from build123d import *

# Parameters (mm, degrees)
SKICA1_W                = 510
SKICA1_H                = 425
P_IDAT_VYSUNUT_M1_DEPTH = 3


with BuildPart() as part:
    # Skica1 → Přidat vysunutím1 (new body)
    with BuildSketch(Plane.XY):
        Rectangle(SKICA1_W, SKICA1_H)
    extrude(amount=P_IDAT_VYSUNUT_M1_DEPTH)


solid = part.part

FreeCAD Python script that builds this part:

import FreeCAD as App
import Part
import Sketcher

V = App.Vector


def add_polygon(sketch, points):
    """Adds a closed chain of lines whose ends are joined by coincident constraints."""
    first, n = sketch.GeometryCount, len(points)
    for a, b in zip(points, points[1:] + points[:1]):
        sketch.addGeometry(Part.LineSegment(App.Vector(*a, 0), App.Vector(*b, 0)), False)
    for i in range(n):
        sketch.addConstraint(Sketcher.Constraint("Coincident", first + i, 2, first + (i + 1) % n, 1))

doc = App.newDocument("Part")
params = doc.addObject("Spreadsheet::Sheet", "Params")
for row, (alias, value) in enumerate([
    ("sketch1_width", "510 mm"),
    ("sketch1_height", "425 mm"),
    ("pad1_length", "3 mm"),
], start=1):
    params.set(f"A{row}", alias)
    params.set(f"B{row}", "=" + value)
    params.setAlias(f"B{row}", alias)

body = doc.addObject("PartDesign::Body", "Body")

sketch1 = body.newObject("Sketcher::SketchObject", "Sketch")
sketch1.AttachmentSupport = (doc.getObject("XY_Plane"), [""])
sketch1.MapMode = "FlatFace"
add_polygon(sketch1, [(-255, 212.5), (-255, -212.5), (255, -212.5), (255, 212.5)])
sketch1.addConstraint([
    Sketcher.Constraint("Vertical", 0),
    Sketcher.Constraint("Horizontal", 1),
    Sketcher.Constraint("Vertical", 2),
    Sketcher.Constraint("Horizontal", 3),
    Sketcher.Constraint("Symmetric", 0, 2, 2, 2, -1, 1),
    Sketcher.Constraint("DistanceX", 1, 1, 1, 2, 510.0),
    Sketcher.Constraint("DistanceY", 0, 2, 0, 1, 425.0),
])
sketch1.setExpression("Constraints[9]", "Params.sketch1_width")
sketch1.setExpression("Constraints[10]", "Params.sketch1_height")
pad1 = body.newObject("PartDesign::Pad", "Pad")
pad1.Profile = sketch1
pad1.setExpression("Length", "Params.pad1_length")

doc.recompute()
